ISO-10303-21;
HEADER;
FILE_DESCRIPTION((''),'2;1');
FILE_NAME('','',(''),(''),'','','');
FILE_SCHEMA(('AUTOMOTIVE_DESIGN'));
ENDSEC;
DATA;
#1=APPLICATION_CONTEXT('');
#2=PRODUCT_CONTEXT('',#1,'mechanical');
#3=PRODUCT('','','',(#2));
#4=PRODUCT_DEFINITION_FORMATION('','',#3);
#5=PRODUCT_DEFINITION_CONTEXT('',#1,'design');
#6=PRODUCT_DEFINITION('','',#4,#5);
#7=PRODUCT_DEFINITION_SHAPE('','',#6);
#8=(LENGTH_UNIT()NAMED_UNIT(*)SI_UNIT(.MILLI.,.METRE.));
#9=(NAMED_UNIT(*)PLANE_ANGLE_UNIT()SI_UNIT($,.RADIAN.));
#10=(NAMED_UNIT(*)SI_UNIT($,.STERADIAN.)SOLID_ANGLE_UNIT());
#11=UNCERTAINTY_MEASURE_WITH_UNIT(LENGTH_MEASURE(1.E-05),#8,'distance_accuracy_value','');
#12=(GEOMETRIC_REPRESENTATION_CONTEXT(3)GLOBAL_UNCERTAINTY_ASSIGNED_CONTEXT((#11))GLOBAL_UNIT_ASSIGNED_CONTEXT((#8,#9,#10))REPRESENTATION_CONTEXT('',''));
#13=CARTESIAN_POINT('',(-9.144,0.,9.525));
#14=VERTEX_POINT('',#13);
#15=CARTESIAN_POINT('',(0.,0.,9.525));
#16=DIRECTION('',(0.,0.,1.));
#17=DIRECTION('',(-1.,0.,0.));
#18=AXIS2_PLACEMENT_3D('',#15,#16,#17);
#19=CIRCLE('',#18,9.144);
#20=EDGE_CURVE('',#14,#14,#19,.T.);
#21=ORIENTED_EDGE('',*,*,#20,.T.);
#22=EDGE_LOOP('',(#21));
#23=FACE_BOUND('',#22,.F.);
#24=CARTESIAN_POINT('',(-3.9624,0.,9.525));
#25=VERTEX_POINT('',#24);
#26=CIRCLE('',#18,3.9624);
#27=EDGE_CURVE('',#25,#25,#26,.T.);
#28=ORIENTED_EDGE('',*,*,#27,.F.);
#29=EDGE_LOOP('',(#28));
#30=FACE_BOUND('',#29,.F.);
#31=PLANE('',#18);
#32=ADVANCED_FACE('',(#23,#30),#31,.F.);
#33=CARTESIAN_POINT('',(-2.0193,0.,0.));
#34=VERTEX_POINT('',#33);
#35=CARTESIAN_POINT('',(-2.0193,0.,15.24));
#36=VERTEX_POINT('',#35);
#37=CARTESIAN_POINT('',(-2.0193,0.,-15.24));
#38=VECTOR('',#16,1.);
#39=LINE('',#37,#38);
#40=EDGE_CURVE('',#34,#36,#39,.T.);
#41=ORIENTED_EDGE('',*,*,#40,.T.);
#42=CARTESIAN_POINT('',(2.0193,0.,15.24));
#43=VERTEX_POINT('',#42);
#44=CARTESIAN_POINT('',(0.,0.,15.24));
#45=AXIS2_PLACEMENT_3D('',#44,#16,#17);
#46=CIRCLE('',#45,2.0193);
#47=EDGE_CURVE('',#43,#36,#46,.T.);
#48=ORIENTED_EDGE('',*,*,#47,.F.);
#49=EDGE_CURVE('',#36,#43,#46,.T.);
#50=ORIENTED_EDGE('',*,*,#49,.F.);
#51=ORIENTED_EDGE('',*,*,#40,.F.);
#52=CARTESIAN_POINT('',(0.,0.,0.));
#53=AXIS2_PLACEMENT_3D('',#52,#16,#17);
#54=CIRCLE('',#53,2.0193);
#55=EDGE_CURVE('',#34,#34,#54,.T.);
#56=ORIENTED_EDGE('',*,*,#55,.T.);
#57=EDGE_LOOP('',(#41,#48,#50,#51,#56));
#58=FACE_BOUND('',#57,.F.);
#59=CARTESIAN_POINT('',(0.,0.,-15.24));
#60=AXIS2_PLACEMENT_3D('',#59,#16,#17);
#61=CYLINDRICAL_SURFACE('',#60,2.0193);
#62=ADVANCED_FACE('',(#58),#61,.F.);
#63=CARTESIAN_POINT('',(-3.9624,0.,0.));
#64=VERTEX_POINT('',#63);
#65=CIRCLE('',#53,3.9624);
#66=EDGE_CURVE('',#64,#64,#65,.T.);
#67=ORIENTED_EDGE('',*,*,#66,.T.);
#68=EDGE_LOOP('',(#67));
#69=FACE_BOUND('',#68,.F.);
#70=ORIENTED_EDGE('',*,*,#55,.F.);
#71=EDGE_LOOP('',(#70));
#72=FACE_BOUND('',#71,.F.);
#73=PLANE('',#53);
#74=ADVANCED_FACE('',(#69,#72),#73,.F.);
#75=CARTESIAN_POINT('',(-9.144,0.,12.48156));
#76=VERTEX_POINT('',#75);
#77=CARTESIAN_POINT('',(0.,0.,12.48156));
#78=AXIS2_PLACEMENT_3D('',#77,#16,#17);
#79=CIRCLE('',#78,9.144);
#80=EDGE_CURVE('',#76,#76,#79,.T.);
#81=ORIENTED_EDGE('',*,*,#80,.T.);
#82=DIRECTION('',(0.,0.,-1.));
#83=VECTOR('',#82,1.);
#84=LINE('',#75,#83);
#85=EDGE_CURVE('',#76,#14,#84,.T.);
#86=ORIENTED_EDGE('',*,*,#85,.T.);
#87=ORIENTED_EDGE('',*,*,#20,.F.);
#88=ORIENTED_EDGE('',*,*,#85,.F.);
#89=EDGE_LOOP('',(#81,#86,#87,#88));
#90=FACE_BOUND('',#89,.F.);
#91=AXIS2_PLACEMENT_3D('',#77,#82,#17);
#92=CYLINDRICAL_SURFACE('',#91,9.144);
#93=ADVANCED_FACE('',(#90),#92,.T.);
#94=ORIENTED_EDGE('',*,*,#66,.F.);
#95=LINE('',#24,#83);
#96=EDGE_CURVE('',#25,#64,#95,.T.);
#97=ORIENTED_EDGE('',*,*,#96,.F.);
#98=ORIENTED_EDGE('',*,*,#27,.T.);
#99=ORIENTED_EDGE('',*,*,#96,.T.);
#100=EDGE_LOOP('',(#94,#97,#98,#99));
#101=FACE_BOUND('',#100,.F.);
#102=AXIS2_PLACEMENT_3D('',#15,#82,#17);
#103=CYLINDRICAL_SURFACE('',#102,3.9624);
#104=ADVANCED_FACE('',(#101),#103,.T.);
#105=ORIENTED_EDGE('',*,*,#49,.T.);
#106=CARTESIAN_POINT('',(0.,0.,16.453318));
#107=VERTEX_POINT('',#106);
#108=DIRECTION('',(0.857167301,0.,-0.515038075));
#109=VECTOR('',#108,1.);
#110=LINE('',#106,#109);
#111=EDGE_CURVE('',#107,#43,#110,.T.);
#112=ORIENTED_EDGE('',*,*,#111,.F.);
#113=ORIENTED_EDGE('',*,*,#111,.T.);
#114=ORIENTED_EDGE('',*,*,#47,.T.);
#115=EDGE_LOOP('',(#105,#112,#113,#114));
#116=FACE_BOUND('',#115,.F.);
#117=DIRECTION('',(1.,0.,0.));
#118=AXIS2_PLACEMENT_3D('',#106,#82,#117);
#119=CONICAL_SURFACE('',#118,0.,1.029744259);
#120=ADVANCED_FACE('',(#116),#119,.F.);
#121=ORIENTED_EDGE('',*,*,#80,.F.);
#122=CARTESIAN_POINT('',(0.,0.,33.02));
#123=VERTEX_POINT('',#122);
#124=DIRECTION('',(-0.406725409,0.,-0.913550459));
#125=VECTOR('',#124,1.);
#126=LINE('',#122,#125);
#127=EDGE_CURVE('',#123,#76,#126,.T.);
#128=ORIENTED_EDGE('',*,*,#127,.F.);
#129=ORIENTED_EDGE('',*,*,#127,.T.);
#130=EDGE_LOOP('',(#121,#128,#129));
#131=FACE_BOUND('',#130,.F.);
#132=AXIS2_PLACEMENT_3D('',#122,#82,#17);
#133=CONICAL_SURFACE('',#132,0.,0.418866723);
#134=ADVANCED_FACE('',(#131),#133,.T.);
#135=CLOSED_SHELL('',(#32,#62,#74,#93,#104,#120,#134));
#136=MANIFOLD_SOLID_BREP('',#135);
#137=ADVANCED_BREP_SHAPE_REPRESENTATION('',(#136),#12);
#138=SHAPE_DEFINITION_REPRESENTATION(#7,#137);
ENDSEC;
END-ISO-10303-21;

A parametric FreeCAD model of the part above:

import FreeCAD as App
import Part
import Sketcher
from FreeCAD import Vector
Q = App.Units.Quantity


def add_polygon(sketch, points):
    """Adds a closed chain of lines whose ends are joined by coincident constraints."""
    first, n = sketch.GeometryCount, len(points)
    for a, b in zip(points, points[1:] + points[:1]):
        sketch.addGeometry(Part.LineSegment(App.Vector(*a, 0), App.Vector(*b, 0)), False)
    for i in range(n):
        sketch.addConstraint(Sketcher.Constraint("Coincident", first + i, 2, first + (i + 1) % n, 1))

doc = App.newDocument("Part")
body = doc.addObject("PartDesign::Body", "Body")

# Sketch on XZ plane
sketch1 = doc.addObject("Sketcher::SketchObject", "Sketch")
body.addObject(sketch1)
sketch1.AttachmentSupport = (doc.XZ_Plane, [""])
sketch1.MapMode = "FlatFace"
add_polygon(sketch1, [(0, 0), (0, 33), (-9.1, 12.5), (-9.1, 9.5), (-4, 9.5), (-4, 0)])  # lines 0-5
sketch1.addConstraint([
    Sketcher.Constraint("Vertical", 0),
    Sketcher.Constraint("Vertical", 2),
    Sketcher.Constraint("Horizontal", 3),
    Sketcher.Constraint("Vertical", 4),
    Sketcher.Constraint("Horizontal", 5),
    Sketcher.Constraint("Coincident", 5, 2, -1, 1),
    Sketcher.Constraint("DistanceY", 0, 1, 0, 2, Q("1.3 in")),
    Sketcher.Constraint("DistanceX", 3, 1, 3, 2, Q("0.204 in")),
    Sketcher.Constraint("DistanceX", 5, 1, 5, 2, Q("0.156 in")),
    Sketcher.Constraint("DistanceY", 4, 2, 4, 1, Q("0.375 in")),
    Sketcher.Constraint("DistanceY", 2, 2, 2, 1, Q("0.1164 in")),
])
revolution = doc.addObject("PartDesign::Revolution", "Revolution")
body.addObject(revolution)
revolution.Profile = sketch1
revolution.ReferenceAxis = (sketch1, ["V_Axis"])
revolution.Angle = 360

# Sketch on XY plane
sketch2 = doc.addObject("Sketcher::SketchObject", "Sketch001")
body.addObject(sketch2)
sketch2.AttachmentSupport = (doc.XY_Plane, [""])
sketch2.MapMode = "FlatFace"
sketch2.addGeometry(Part.Circle(Vector(0, 0, 0), Vector(0, 0, 1), 2), False)
sketch2.addConstraint([
    Sketcher.Constraint("Coincident", 0, 3, -1, 1),
    Sketcher.Constraint("Diameter", 0, Q("0.159 in")),
])
doc.recompute()
hole = doc.addObject("PartDesign::Hole", "Hole")
body.addObject(hole)
hole.Profile = sketch2
hole.ThreadType = "None"
hole.Diameter = Q("0.159 in")
hole.DepthType = "Dimension"
hole.Depth = Q("0.6 in")
hole.DrillPoint = "Angled"
hole.DrillPointAngle = 118
hole.Reversed = True

doc.recompute()
